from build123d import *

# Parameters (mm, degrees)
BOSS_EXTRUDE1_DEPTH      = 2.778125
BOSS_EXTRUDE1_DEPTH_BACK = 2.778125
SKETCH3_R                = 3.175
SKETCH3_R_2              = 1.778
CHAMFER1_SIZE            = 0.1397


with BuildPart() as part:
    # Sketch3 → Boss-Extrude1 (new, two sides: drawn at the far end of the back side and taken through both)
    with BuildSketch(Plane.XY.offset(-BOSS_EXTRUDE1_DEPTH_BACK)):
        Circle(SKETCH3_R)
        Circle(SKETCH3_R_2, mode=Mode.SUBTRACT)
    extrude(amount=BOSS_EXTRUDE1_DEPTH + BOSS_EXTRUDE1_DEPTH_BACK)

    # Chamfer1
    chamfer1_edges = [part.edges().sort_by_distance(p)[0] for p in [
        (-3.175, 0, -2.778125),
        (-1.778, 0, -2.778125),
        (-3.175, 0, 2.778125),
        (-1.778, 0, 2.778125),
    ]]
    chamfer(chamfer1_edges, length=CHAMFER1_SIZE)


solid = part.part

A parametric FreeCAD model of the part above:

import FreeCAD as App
import Part
import Sketcher

V = App.Vector
Q = App.Units.Quantity


def edges_at(feature, points):
    """Names of the edges that pass closest to the given points."""
    edges = feature.Shape.Edges
    near = lambda p: min(range(len(edges)), key=lambda i: edges[i].distToShape(Part.Vertex(*p))[0])
    return sorted({f"Edge{near(p) + 1}" for p in points})

doc = App.newDocument("Part")
params = doc.addObject("Spreadsheet::Sheet", "Params")
for row, (alias, value) in enumerate([
    ("sketch1_diameter", "0.25 in"),
    ("sketch1_diameter2", "0.14 in"),
    ("pad1_length", "0.109375 in"),
    ("pad1_length2", "0.109375 in"),
    ("chamfer_size", "0.0055 in"),
], start=1):
    params.set(f"A{row}", alias)
    params.set(f"B{row}", "=" + value)
    params.setAlias(f"B{row}", alias)

body = doc.addObject("PartDesign::Body", "Body")

sketch1 = doc.addObject("Sketcher::SketchObject", "Sketch")
body.addObject(sketch1)
sketch1.AttachmentSupport = (doc.XY_Plane, [""])
sketch1.MapMode = "FlatFace"
sketch1.addGeometry(Part.Circle(V(0, 0, 0), V(0, 0, 1), 3.2), False)
sketch1.addGeometry(Part.Circle(V(0, 0, 0), V(0, 0, 1), 1.8), False)
sketch1.addConstraint(Sketcher.Constraint("Coincident", 0, 3, -1, 1))
sketch1.addConstraint(Sketcher.Constraint("Coincident", 1, 3, -1, 1))
sketch1.addConstraint(Sketcher.Constraint("Diameter", 0, Q("0.25 in")))
sketch1.addConstraint(Sketcher.Constraint("Diameter", 1, Q("0.14 in")))
sketch1.setExpression("Constraints[2]", "Params.sketch1_diameter")
sketch1.setExpression("Constraints[3]", "Params.sketch1_diameter2")
pad1 = doc.addObject("PartDesign::Pad", "Pad")
body.addObject(pad1)
pad1.Profile = sketch1
pad1.Type = "TwoLengths"
pad1.setExpression("Length", "Params.pad1_length")
pad1.setExpression("Length2", "Params.pad1_length2")
doc.recompute()

chamfer = doc.addObject("PartDesign::Chamfer", "Chamfer")
body.addObject(chamfer)
chamfer.Base = (pad1, edges_at(pad1, [
    (-3.175, 0, -2.778),
    (-1.778, 0, -2.778),
    (-3.175, 0, 2.778),
    (-1.778, 0, 2.778),
]))
chamfer.setExpression("Size", "Params.chamfer_size")

doc.recompute()
